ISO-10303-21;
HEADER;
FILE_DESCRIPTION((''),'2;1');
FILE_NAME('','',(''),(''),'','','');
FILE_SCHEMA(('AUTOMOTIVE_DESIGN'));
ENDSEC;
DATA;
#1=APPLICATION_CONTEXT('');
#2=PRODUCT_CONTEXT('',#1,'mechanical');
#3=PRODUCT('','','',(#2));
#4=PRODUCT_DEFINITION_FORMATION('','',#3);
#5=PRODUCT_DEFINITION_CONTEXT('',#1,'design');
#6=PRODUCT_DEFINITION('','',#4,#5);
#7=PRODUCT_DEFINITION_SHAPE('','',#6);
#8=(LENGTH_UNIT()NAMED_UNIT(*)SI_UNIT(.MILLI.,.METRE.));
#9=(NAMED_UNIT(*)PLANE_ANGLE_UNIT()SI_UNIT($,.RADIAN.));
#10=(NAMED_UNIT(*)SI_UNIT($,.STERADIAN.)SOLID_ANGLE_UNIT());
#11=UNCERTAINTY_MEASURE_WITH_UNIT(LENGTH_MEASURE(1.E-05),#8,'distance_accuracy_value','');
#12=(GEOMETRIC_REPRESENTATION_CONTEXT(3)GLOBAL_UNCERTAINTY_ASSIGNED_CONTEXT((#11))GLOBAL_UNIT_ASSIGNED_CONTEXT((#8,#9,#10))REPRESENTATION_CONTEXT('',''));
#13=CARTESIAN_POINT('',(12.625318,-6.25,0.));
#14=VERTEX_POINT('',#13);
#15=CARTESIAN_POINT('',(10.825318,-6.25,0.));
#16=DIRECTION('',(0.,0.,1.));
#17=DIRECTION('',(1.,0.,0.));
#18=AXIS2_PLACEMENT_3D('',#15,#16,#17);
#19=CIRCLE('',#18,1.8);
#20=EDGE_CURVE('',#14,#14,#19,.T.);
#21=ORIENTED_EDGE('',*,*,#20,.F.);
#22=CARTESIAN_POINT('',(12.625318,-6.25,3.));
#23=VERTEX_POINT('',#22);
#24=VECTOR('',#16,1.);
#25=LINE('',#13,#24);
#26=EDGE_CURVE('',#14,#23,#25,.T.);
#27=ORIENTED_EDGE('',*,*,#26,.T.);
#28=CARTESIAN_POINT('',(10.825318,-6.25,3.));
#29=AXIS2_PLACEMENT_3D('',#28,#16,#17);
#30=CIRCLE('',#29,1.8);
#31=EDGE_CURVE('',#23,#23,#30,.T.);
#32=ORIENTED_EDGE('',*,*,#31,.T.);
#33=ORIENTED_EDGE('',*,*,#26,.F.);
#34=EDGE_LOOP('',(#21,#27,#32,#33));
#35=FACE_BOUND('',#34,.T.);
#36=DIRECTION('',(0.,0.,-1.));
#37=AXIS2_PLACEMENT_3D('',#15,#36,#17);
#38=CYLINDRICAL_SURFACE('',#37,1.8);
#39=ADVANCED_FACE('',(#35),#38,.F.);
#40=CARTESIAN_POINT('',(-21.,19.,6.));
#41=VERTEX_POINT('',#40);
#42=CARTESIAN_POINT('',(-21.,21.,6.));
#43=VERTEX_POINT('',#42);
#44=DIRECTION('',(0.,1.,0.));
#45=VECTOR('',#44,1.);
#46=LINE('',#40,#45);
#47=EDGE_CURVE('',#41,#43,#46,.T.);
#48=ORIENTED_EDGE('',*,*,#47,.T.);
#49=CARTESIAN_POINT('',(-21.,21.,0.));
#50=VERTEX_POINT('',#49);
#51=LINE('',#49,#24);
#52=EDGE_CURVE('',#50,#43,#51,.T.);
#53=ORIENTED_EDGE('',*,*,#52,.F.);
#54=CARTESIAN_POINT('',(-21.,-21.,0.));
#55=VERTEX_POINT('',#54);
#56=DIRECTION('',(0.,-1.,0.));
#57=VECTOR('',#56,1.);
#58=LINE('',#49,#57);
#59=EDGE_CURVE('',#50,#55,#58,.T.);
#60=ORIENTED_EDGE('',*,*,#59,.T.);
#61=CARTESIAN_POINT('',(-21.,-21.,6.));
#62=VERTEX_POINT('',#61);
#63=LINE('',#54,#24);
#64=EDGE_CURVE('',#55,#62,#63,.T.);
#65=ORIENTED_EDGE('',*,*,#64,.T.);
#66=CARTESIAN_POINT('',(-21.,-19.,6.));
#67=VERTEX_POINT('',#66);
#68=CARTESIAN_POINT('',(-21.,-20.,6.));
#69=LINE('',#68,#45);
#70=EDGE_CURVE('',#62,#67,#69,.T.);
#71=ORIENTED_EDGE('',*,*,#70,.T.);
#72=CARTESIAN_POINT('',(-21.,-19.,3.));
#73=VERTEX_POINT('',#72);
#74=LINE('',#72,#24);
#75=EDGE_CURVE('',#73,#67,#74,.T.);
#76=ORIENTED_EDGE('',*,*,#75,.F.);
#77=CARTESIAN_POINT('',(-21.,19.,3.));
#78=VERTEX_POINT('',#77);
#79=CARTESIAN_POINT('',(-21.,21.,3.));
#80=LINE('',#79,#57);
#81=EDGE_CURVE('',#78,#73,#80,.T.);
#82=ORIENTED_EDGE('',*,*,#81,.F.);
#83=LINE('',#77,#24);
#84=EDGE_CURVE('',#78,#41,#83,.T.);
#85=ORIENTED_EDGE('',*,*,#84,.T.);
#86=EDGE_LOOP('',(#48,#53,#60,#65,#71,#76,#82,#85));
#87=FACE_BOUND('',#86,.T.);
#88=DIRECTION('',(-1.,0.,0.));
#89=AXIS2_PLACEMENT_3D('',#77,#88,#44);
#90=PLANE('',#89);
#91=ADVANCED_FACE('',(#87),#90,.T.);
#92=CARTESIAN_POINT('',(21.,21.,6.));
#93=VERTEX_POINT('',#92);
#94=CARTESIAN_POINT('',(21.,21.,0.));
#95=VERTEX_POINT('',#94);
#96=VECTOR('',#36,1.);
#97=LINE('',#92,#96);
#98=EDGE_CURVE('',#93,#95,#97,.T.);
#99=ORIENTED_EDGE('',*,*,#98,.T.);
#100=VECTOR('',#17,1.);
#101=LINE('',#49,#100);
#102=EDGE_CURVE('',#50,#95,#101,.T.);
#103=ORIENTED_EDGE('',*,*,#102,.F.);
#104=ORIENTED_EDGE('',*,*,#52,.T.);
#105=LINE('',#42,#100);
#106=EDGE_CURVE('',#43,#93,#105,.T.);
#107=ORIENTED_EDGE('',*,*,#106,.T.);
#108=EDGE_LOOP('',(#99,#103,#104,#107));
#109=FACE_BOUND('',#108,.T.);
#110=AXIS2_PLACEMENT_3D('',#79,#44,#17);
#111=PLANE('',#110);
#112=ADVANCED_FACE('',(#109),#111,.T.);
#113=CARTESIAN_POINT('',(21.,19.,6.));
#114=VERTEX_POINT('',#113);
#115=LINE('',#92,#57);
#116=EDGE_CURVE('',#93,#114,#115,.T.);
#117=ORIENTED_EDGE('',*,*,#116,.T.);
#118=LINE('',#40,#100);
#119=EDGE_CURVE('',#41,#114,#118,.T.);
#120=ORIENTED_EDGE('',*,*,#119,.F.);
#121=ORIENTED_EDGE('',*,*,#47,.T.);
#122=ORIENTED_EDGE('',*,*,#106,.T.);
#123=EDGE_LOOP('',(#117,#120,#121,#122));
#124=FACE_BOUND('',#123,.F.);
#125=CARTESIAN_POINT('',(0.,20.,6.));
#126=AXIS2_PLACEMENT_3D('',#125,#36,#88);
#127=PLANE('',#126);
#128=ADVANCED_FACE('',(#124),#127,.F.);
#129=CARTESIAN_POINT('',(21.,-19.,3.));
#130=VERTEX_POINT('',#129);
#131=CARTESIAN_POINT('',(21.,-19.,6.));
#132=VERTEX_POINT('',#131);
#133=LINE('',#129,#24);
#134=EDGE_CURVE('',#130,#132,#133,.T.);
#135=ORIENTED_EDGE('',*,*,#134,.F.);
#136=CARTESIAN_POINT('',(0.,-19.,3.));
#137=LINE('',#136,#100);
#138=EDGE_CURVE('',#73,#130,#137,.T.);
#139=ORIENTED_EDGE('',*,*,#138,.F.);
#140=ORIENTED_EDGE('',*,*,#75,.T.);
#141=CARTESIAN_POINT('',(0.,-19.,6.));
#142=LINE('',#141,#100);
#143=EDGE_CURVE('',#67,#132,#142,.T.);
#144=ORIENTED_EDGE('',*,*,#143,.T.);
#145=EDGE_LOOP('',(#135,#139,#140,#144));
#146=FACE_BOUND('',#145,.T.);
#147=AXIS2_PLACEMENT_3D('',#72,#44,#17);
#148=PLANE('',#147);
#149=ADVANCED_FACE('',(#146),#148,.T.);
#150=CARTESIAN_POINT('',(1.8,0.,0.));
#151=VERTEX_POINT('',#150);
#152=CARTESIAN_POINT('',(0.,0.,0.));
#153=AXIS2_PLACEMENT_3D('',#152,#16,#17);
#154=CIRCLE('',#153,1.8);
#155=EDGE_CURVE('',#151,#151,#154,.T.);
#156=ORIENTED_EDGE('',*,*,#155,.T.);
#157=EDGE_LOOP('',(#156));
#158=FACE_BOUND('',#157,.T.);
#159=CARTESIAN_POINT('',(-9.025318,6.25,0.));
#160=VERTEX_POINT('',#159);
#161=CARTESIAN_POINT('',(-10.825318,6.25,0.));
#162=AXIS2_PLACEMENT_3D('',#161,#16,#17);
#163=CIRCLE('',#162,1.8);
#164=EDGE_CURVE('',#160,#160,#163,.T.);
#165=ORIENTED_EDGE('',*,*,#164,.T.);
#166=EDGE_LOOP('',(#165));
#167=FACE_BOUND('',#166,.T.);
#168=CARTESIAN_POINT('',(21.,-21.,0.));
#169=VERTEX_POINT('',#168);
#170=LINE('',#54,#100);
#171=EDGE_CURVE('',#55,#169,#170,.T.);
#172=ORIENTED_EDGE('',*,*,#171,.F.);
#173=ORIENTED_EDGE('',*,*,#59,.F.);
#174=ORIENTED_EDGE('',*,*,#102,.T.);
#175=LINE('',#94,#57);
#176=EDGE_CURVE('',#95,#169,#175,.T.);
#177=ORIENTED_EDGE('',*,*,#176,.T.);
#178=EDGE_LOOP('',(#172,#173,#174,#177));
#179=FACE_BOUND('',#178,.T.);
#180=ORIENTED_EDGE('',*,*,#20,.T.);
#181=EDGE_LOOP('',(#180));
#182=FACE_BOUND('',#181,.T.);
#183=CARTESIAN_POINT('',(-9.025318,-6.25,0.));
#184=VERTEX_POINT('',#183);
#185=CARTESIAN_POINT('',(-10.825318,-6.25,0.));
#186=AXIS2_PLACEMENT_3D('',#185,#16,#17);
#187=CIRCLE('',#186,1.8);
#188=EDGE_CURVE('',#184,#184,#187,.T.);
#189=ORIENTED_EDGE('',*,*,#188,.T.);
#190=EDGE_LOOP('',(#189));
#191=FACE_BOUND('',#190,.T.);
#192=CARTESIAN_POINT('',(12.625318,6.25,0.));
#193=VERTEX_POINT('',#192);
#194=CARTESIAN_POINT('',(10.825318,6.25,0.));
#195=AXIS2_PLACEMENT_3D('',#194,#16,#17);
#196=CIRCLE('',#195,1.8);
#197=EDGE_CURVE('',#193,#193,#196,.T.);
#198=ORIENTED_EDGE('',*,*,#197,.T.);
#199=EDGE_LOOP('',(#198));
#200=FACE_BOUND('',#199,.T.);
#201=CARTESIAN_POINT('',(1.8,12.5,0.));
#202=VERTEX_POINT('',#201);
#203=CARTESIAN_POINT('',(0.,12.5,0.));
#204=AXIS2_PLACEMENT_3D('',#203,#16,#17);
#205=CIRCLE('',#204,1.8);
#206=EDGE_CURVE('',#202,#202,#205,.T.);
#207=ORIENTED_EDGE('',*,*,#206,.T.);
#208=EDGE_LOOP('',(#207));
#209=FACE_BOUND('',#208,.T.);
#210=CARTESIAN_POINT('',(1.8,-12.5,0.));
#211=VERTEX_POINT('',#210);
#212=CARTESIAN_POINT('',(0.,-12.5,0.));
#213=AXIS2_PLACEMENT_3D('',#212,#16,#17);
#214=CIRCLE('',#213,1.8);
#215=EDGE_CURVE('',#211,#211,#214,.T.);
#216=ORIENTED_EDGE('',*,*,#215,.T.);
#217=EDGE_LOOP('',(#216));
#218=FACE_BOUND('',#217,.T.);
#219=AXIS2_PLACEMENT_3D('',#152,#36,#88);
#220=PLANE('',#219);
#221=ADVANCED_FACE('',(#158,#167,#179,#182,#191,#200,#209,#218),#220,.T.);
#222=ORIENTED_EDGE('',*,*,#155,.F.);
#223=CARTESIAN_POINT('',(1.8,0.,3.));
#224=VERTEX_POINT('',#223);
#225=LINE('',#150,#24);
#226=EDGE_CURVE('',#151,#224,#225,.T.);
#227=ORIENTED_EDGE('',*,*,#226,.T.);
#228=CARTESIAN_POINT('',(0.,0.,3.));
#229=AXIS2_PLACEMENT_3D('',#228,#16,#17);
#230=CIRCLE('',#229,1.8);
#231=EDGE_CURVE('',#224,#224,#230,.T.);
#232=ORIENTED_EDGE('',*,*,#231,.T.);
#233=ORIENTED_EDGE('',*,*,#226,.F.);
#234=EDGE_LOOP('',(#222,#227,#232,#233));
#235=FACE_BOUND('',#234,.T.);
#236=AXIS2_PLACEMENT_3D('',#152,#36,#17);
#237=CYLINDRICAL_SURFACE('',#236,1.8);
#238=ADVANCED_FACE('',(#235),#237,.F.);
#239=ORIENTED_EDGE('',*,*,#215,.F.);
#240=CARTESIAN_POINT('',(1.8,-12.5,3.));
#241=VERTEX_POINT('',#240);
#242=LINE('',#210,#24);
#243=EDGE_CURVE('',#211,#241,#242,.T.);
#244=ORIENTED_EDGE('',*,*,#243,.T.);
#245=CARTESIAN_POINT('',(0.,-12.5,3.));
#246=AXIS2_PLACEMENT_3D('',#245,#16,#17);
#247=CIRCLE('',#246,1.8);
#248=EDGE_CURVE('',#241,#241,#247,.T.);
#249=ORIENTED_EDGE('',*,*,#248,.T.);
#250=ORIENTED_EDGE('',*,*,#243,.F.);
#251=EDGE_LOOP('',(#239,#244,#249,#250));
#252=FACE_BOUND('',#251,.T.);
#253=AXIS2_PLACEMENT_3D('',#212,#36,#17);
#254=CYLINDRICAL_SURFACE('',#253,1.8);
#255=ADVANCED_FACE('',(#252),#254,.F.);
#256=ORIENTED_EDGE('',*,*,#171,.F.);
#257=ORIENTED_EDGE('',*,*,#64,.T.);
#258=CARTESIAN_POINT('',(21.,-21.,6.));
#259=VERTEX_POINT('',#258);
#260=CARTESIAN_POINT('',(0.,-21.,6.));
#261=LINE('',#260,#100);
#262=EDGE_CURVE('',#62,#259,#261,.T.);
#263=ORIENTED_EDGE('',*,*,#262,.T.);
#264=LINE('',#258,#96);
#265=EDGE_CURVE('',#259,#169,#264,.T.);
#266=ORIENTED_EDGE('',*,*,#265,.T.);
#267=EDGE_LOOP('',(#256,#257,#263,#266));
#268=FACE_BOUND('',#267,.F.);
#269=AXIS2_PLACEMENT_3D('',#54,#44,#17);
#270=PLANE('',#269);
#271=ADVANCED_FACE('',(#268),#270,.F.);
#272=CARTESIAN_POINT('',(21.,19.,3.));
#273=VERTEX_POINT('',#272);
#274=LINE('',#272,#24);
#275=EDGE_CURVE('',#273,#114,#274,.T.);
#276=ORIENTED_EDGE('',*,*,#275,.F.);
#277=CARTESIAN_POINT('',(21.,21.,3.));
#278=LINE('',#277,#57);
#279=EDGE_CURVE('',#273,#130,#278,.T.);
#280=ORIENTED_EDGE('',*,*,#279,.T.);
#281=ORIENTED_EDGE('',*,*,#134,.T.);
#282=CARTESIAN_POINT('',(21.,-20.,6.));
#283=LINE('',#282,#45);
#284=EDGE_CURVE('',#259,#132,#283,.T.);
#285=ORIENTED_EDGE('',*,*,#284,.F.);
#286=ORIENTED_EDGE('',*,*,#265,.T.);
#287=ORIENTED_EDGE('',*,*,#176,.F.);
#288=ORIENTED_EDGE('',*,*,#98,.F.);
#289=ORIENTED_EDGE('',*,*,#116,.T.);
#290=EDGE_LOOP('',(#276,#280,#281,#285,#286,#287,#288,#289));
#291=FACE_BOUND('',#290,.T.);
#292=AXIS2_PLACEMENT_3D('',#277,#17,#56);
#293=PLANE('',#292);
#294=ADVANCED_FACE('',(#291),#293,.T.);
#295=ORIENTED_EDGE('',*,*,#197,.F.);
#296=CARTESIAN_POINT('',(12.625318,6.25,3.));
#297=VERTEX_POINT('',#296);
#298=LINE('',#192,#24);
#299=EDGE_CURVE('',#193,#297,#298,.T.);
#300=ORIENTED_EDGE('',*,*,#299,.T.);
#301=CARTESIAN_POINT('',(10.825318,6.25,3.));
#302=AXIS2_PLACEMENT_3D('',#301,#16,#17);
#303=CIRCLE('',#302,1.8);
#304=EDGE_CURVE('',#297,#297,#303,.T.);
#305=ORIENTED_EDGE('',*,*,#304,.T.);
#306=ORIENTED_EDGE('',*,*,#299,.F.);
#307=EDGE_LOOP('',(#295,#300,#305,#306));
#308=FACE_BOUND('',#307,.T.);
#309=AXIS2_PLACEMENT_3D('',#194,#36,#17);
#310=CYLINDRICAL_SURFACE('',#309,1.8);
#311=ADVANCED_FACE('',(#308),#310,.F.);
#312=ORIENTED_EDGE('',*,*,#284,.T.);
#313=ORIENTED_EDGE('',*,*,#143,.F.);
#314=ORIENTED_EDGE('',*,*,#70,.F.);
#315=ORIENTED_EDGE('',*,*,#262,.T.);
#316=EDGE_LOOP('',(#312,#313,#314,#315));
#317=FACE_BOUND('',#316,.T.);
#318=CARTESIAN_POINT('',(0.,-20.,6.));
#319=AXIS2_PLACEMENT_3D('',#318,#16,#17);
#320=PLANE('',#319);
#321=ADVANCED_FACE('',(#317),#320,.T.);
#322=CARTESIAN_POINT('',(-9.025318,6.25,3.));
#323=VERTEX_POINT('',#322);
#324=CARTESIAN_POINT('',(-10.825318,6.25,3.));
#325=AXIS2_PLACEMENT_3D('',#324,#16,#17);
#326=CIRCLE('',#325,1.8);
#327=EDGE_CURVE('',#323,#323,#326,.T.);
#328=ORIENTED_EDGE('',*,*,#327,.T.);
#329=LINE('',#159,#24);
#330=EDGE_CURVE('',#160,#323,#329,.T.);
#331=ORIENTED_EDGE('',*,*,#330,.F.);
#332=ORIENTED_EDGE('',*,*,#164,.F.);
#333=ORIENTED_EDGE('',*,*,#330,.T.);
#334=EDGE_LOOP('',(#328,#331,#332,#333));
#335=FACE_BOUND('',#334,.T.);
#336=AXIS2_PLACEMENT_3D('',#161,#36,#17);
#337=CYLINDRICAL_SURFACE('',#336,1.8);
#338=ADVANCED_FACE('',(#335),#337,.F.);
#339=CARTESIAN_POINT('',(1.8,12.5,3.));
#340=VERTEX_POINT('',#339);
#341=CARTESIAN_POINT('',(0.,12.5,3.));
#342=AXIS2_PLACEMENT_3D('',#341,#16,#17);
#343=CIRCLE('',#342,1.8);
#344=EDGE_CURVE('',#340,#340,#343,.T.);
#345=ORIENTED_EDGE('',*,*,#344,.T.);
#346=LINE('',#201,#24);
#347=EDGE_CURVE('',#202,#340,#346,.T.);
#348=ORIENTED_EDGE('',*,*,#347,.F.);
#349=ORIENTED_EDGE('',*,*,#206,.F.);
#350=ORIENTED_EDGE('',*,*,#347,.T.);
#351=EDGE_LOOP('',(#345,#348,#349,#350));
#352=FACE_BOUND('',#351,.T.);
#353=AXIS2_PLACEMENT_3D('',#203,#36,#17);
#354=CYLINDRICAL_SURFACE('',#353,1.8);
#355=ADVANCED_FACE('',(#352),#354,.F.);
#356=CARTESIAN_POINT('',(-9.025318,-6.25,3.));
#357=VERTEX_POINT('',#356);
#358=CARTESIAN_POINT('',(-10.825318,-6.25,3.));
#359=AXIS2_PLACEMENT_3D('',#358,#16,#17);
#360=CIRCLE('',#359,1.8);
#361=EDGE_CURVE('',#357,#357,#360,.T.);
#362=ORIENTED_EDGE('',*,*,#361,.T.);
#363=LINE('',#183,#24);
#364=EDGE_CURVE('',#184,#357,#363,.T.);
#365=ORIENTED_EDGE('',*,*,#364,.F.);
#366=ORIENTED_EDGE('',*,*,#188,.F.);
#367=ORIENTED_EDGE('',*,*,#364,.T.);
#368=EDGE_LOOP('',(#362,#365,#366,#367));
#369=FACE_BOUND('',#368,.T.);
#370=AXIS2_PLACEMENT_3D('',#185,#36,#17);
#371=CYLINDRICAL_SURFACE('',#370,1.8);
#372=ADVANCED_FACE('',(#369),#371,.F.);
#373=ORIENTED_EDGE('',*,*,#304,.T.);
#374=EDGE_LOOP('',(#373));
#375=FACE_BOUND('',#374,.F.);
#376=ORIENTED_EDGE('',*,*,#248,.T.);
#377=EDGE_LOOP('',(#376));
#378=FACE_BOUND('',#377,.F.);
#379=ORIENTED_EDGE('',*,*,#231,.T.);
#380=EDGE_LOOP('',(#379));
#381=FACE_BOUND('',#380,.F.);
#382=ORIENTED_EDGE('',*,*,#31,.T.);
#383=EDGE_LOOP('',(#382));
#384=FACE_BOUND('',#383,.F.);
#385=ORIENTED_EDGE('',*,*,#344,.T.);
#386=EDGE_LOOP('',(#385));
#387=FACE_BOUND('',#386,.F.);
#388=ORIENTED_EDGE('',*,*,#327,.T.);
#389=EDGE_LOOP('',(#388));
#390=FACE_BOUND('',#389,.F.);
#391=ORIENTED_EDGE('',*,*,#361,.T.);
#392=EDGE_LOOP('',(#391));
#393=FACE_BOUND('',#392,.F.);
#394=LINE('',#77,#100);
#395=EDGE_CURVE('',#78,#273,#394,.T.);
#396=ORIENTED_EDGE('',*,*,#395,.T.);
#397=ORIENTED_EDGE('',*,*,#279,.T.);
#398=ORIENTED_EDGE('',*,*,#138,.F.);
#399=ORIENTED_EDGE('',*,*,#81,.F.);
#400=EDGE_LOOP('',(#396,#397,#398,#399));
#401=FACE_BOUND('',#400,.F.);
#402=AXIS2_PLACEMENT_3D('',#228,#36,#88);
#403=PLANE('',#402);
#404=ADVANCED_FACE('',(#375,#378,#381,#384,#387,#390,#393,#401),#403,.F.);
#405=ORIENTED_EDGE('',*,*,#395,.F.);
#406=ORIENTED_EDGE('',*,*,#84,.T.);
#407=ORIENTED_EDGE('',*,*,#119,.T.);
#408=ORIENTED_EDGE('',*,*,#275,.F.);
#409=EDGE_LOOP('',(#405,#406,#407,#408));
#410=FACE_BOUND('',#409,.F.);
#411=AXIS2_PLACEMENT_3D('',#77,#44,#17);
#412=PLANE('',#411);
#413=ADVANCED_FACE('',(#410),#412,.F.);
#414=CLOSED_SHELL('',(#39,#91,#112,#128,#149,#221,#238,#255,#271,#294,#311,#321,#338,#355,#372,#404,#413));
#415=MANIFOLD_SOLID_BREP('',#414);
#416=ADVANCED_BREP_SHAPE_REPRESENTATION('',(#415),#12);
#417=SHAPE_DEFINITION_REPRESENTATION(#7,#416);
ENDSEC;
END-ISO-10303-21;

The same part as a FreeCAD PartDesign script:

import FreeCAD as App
import Part
import Sketcher
from FreeCAD import Vector

doc = App.newDocument("Part")
params = doc.addObject("Spreadsheet::Sheet", "Params")
for row, (alias, value) in enumerate([
    ("sketch1_diameter", "3.6 mm"),
    ("sketch1_width", "42 mm"),
    ("pad1_length", "3 mm"),
    ("sketch2_width", "42 mm"),
    ("sketch2_height", "2 mm"),
    ("pad2_length", "3 mm"),
], start=1):
    params.set(f"A{row}", alias)
    params.set(f"B{row}", "=" + value)
    params.setAlias(f"B{row}", alias)

body = doc.addObject("PartDesign::Body", "Body")

# Sketch on XY plane
sketch1 = body.newObject("Sketcher::SketchObject", "Sketch")
sketch1.AttachmentSupport = (doc.getObject("XY_Plane"), [""])
sketch1.MapMode = "FlatFace"
sketch1.addGeometry([
    Part.LineSegment(Vector(21, 21, 0), Vector(-21, 21, 0)),  # 0
    Part.LineSegment(Vector(-21, 21, 0), Vector(-21, -21, 0)),  # 1
    Part.LineSegment(Vector(-21, -21, 0), Vector(21, -21, 0)),  # 2
    Part.LineSegment(Vector(21, -21, 0), Vector(21, 21, 0)),  # 3
    Part.Circle(Vector(10.825318, -6.25, 0), Vector(0, 0, 1), 1.8),  # 4
    Part.Circle(Vector(0, -12.5, 0), Vector(0, 0, 1), 1.8),  # 5
    Part.Circle(Vector(0, 0, 0), Vector(0, 0, 1), 1.8),  # 6
    Part.Circle(Vector(-10.825318, -6.25, 0), Vector(0, 0, 1), 1.8),  # 7
    Part.Circle(Vector(10.825318, 6.25, 0), Vector(0, 0, 1), 1.8),  # 8
    Part.Circle(Vector(-10.825318, 6.25, 0), Vector(0, 0, 1), 1.8),  # 9
    Part.Circle(Vector(0, 12.5, 0), Vector(0, 0, 1), 1.8),  # 10
], False)
sketch1.addConstraint([
    Sketcher.Constraint("Coincident", 0, 2, 1, 1),
    Sketcher.Constraint("Coincident", 1, 2, 2, 1),
    Sketcher.Constraint("Coincident", 2, 2, 3, 1),
    Sketcher.Constraint("Coincident", 3, 2, 0, 1),
    Sketcher.Constraint("Horizontal", 0),
    Sketcher.Constraint("Vertical", 1),
    Sketcher.Constraint("Horizontal", 2),
    Sketcher.Constraint("Vertical", 3),
    Sketcher.Constraint("Coincident", 6, 3, -1, 1),
    Sketcher.Constraint("Equal", 4, 5),
    Sketcher.Constraint("Equal", 5, 6),
    Sketcher.Constraint("Equal", 6, 7),
    Sketcher.Constraint("Equal", 7, 8),
    Sketcher.Constraint("Equal", 8, 9),
    Sketcher.Constraint("Equal", 9, 10),
    Sketcher.Constraint("Symmetric", 7, 3, 8, 3, -1, 1),
    Sketcher.Constraint("Symmetric", 4, 3, 9, 3, -1, 1),
    Sketcher.Constraint("Symmetric", 5, 3, 10, 3, -1, 1),
    Sketcher.Constraint("Symmetric", 0, 2, 2, 2, -1, 1),
    Sketcher.Constraint("Symmetric", 4, 3, 7, 3, -2),
    Sketcher.Constraint("PointOnObject", 5, 3, -2),
    Sketcher.Constraint("Equal", 2, 1),
    Sketcher.Constraint("Diameter", 4, 3.6),
    Sketcher.Constraint("DistanceX", 0, 2, 0, 1, 42.0),
    Sketcher.Constraint("DistanceY", 5, 3, -1, 1, 12.5),
    Sketcher.Constraint("DistanceY", 4, 3, 8, 3, 12.5),
    Sketcher.Constraint("DistanceX", -1, 1, 4, 3, 10.825318),
])
sketch1.setExpression("Constraints[22]", "Params.sketch1_diameter")
sketch1.setExpression("Constraints[23]", "Params.sketch1_width")
pad1 = body.newObject("PartDesign::Pad", "Pad")
pad1.Profile = sketch1
pad1.setExpression("Length", "Params.pad1_length")

# Sketch on XY plane
sketch2 = body.newObject("Sketcher::SketchObject", "Sketch001")
sketch2.AttachmentSupport = (doc.getObject("XY_Plane"), [""])
sketch2.MapMode = "FlatFace"
sketch2.AttachmentOffset = App.Placement(Vector(0, 0, 3), App.Rotation())
sketch2.addGeometry([
    Part.LineSegment(Vector(21, 21, 0), Vector(-21, 21, 0)),  # 0
    Part.LineSegment(Vector(-21, 21, 0), Vector(-21, 19, 0)),  # 1
    Part.LineSegment(Vector(-21, 19, 0), Vector(21, 19, 0)),  # 2
    Part.LineSegment(Vector(21, 19, 0), Vector(21, 21, 0)),  # 3
    Part.LineSegment(Vector(-21, -19, 0), Vector(-21, -21, 0)),  # 4
    Part.LineSegment(Vector(-21, -21, 0), Vector(21, -21, 0)),  # 5
    Part.LineSegment(Vector(21, -21, 0), Vector(21, -19, 0)),  # 6
    Part.LineSegment(Vector(21, -19, 0), Vector(-21, -19, 0)),  # 7
], False)
sketch2.addConstraint([
    Sketcher.Constraint("Coincident", 0, 2, 1, 1),
    Sketcher.Constraint("Coincident", 1, 2, 2, 1),
    Sketcher.Constraint("Coincident", 2, 2, 3, 1),
    Sketcher.Constraint("Coincident", 3, 2, 0, 1),
    Sketcher.Constraint("Coincident", 4, 2, 5, 1),
    Sketcher.Constraint("Coincident", 5, 2, 6, 1),
    Sketcher.Constraint("Coincident", 6, 2, 7, 1),
    Sketcher.Constraint("Coincident", 7, 2, 4, 1),
    Sketcher.Constraint("Horizontal", 0),
    Sketcher.Constraint("Vertical", 1),
    Sketcher.Constraint("Horizontal", 2),
    Sketcher.Constraint("Vertical", 3),
    Sketcher.Constraint("Vertical", 4),
    Sketcher.Constraint("Horizontal", 5),
    Sketcher.Constraint("Vertical", 6),
    Sketcher.Constraint("Horizontal", 7),
    Sketcher.Constraint("Symmetric", 3, 2, 4, 2, -1, 1),
    Sketcher.Constraint("Symmetric", 1, 2, 6, 2, -1, 1),
    Sketcher.Constraint("Vertical", 1, 2, 4, 2),
    Sketcher.Constraint("DistanceX", 0, 2, 0, 1, 42.0),
    Sketcher.Constraint("DistanceY", 1, 2, 1, 1, 2.0),
    Sketcher.Constraint("DistanceY", -1, 1, 0, 2, 21.0),
])
sketch2.setExpression("Constraints[19]", "Params.sketch2_width")
sketch2.setExpression("Constraints[20]", "Params.sketch2_height")
pad2 = body.newObject("PartDesign::Pad", "Pad001")
pad2.Profile = sketch2
pad2.setExpression("Length", "Params.pad2_length")

doc.recompute()
